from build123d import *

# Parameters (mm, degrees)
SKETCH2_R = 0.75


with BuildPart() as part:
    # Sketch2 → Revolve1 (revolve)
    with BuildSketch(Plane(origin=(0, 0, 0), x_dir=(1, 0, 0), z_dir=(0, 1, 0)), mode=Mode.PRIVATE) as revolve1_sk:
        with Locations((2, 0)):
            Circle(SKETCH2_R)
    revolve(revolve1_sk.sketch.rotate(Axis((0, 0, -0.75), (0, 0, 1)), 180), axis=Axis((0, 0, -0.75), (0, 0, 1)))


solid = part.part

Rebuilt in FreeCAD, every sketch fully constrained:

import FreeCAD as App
import Part
import Sketcher
from FreeCAD import Vector
Q = App.Units.Quantity

doc = App.newDocument("Part")
body = doc.addObject("PartDesign::Body", "Body")

# Sketch on XZ plane
sketch1 = doc.addObject("Sketcher::SketchObject", "Sketch")
body.addObject(sketch1)
sketch1.AttachmentSupport = (doc.XZ_Plane, [""])
sketch1.MapMode = "FlatFace"
sketch1.addGeometry(Part.Circle(Vector(2, 0, 0), Vector(0, 0, 1), 0.8), False)
sketch1.addConstraint(Sketcher.Constraint("PointOnObject", 0, 3, -1))
sketch1.addConstraint(Sketcher.Constraint("Diameter", 0, Q("1.5 mm")))
sketch1.addConstraint(Sketcher.Constraint("DistanceX", -1, 1, 0, 3, Q("2 mm")))
revolution = doc.addObject("PartDesign::Revolution", "Revolution")
body.addObject(revolution)
revolution.Profile = sketch1
revolution.ReferenceAxis = (sketch1, ["V_Axis"])
revolution.Angle = 360

doc.recompute()
